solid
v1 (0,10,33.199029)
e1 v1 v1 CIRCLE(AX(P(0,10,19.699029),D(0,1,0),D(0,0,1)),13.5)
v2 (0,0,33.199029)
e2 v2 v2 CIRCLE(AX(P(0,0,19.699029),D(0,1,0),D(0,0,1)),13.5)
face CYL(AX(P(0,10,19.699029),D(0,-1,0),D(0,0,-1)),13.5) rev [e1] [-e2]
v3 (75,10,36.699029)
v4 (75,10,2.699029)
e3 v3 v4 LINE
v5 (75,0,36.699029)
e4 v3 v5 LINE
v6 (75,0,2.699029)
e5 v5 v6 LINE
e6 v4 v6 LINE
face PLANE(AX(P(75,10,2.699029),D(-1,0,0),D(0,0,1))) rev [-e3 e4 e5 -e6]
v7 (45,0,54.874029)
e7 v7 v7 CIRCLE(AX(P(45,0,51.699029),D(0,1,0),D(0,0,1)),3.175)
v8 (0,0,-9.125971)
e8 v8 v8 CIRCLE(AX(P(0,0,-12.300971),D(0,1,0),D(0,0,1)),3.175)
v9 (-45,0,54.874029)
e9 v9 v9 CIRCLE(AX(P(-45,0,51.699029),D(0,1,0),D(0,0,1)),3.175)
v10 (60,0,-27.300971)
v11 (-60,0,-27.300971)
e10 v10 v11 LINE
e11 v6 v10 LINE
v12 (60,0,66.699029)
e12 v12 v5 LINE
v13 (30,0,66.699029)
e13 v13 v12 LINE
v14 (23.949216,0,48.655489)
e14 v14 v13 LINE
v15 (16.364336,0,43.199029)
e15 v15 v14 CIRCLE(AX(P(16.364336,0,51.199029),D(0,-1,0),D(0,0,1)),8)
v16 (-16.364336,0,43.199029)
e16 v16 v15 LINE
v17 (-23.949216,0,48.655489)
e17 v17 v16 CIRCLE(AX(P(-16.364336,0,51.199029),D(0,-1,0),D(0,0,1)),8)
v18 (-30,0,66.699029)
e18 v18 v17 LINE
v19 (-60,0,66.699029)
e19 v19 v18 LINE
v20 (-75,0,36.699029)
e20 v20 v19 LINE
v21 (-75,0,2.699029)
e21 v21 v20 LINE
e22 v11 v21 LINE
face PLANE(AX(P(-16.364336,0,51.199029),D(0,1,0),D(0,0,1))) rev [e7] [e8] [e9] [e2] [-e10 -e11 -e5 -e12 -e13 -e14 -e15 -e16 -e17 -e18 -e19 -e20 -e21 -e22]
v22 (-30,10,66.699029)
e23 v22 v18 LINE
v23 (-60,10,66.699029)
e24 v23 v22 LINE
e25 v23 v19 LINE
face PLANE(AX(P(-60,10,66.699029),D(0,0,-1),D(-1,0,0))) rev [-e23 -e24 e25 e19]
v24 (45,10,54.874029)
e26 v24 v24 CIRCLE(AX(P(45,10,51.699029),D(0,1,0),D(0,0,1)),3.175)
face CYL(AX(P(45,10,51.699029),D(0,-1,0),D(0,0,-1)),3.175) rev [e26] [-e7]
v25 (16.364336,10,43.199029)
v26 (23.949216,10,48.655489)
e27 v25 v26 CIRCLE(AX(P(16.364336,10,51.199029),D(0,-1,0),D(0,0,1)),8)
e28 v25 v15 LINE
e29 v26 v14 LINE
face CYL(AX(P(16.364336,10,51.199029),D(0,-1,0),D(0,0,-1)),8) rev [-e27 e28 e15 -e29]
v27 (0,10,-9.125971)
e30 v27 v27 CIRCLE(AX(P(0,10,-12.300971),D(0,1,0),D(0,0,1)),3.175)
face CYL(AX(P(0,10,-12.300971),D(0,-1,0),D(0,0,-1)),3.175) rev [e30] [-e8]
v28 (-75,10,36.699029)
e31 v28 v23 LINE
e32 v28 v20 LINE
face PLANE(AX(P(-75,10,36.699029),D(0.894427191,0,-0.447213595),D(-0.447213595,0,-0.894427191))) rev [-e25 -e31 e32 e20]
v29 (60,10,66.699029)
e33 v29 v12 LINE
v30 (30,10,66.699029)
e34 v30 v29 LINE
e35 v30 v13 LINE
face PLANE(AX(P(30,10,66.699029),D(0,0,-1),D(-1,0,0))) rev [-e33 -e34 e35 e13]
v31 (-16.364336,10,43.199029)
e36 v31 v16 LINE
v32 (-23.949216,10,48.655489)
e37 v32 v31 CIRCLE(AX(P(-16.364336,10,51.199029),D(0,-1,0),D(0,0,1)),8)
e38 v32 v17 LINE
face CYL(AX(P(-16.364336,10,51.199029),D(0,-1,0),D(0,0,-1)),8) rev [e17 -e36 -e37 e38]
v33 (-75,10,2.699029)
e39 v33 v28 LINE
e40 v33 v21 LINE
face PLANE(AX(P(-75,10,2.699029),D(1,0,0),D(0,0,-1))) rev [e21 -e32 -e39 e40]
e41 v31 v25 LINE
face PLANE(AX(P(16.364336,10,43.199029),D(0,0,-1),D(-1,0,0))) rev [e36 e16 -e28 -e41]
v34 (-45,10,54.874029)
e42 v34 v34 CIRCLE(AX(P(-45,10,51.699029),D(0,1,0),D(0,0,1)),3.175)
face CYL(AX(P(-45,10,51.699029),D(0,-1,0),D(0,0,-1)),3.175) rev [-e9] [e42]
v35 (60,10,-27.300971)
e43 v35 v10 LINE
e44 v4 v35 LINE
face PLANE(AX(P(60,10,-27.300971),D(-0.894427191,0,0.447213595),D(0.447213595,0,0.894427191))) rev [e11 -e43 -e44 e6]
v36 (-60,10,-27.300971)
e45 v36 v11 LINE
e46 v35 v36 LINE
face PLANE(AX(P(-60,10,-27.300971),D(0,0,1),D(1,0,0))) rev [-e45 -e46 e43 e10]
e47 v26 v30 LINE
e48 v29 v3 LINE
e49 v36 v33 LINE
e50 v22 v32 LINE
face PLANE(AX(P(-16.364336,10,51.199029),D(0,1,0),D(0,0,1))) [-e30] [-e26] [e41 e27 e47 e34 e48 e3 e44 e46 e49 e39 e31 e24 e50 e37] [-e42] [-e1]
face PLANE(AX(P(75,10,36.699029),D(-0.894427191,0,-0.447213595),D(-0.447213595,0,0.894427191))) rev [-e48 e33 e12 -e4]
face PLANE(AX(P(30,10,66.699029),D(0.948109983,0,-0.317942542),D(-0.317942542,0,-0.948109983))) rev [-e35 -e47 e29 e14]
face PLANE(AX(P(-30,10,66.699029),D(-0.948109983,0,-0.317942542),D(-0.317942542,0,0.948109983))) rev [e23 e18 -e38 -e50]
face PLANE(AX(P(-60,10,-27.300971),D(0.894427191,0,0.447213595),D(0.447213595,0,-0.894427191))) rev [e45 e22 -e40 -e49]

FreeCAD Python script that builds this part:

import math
import FreeCAD as App
import Part
import Sketcher
from FreeCAD import Vector
Q = App.Units.Quantity

doc = App.newDocument("Part")
body = doc.addObject("PartDesign::Body", "Body")

sketch1 = doc.addObject("Sketcher::SketchObject", "Sketch")
body.addObject(sketch1)
sketch1.AttachmentSupport = (doc.XZ_Plane, [""])
sketch1.MapMode = "FlatFace"
sketch1.addGeometry(Part.LineSegment(Vector(60, -27.3, 0), Vector(-60, -27.3, 0)), False)
sketch1.addGeometry(Part.LineSegment(Vector(-60, -27.3, 0), Vector(-75, 2.7, 0)), False)
sketch1.addGeometry(Part.LineSegment(Vector(-75, 2.7, 0), Vector(-75, 36.7, 0)), False)
sketch1.addGeometry(Part.LineSegment(Vector(-75, 36.7, 0), Vector(-60, 66.7, 0)), False)
sketch1.addGeometry(Part.LineSegment(Vector(-60, 66.7, 0), Vector(-30, 66.7, 0)), False)
sketch1.addGeometry(Part.LineSegment(Vector(-30, 66.7, 0), Vector(-23.9, 48.7, 0)), False)
sketch1.addGeometry(Part.ArcOfCircle(Part.Circle(Vector(-16.4, 51.2, 0), Vector(0, 0, 1), 8), math.radians(-161), math.radians(-90)), False)
sketch1.addGeometry(Part.LineSegment(Vector(-16.4, 43.2, 0), Vector(16.4, 43.2, 0)), False)
sketch1.addGeometry(Part.ArcOfCircle(Part.Circle(Vector(16.4, 51.2, 0), Vector(0, 0, 1), 8), math.radians(-90), math.radians(-19)), False)
sketch1.addGeometry(Part.LineSegment(Vector(23.9, 48.7, 0), Vector(30, 66.7, 0)), False)
sketch1.addGeometry(Part.LineSegment(Vector(30, 66.7, 0), Vector(60, 66.7, 0)), False)
sketch1.addGeometry(Part.LineSegment(Vector(60, 66.7, 0), Vector(75, 36.7, 0)), False)
sketch1.addGeometry(Part.LineSegment(Vector(75, 36.7, 0), Vector(75, 2.7, 0)), False)
sketch1.addGeometry(Part.LineSegment(Vector(75, 2.7, 0), Vector(60, -27.3, 0)), False)
sketch1.addGeometry(Part.Circle(Vector(45, 51.7, 0), Vector(0, 0, 1), 3.2), False)
sketch1.addGeometry(Part.Circle(Vector(-45, 51.7, 0), Vector(0, 0, 1), 3.2), False)
sketch1.addGeometry(Part.Circle(Vector(0, 19.7, 0), Vector(0, 0, 1), 13.5), False)
sketch1.addGeometry(Part.Circle(Vector(0, -12.3, 0), Vector(0, 0, 1), 3.2), False)
sketch1.addConstraint(Sketcher.Constraint("Coincident", 0, 2, 1, 1))
sketch1.addConstraint(Sketcher.Constraint("Coincident", 1, 2, 2, 1))
sketch1.addConstraint(Sketcher.Constraint("Coincident", 2, 2, 3, 1))
sketch1.addConstraint(Sketcher.Constraint("Coincident", 3, 2, 4, 1))
sketch1.addConstraint(Sketcher.Constraint("Coincident", 4, 2, 5, 1))
sketch1.addConstraint(Sketcher.Constraint("Tangent", 5, 2, 6, 1))
sketch1.addConstraint(Sketcher.Constraint("Tangent", 6, 2, 7, 1))
sketch1.addConstraint(Sketcher.Constraint("Tangent", 7, 2, 8, 1))
sketch1.addConstraint(Sketcher.Constraint("Tangent", 8, 2, 9, 1))
sketch1.addConstraint(Sketcher.Constraint("Coincident", 9, 2, 10, 1))
sketch1.addConstraint(Sketcher.Constraint("Coincident", 10, 2, 11, 1))
sketch1.addConstraint(Sketcher.Constraint("Coincident", 11, 2, 12, 1))
sketch1.addConstraint(Sketcher.Constraint("Coincident", 12, 2, 13, 1))
sketch1.addConstraint(Sketcher.Constraint("Coincident", 13, 2, 0, 1))
sketch1.addConstraint(Sketcher.Constraint("Horizontal", 0))
sketch1.addConstraint(Sketcher.Constraint("Vertical", 2))
sketch1.addConstraint(Sketcher.Constraint("Horizontal", 4))
sketch1.addConstraint(Sketcher.Constraint("Horizontal", 7))
sketch1.addConstraint(Sketcher.Constraint("Horizontal", 10))
sketch1.addConstraint(Sketcher.Constraint("Vertical", 12))
sketch1.addConstraint(Sketcher.Constraint("Equal", 6, 8))
sketch1.addConstraint(Sketcher.Constraint("Equal", 14, 15))
sketch1.addConstraint(Sketcher.Constraint("Equal", 15, 17))
sketch1.addConstraint(Sketcher.Constraint("Symmetric", 14, 3, 15, 3, -2))
sketch1.addConstraint(Sketcher.Constraint("Symmetric", 5, 2, 8, 2, -2))
sketch1.addConstraint(Sketcher.Constraint("Symmetric", 3, 2, 10, 2, -2))
sketch1.addConstraint(Sketcher.Constraint("Symmetric", 2, 2, 11, 2, -2))
sketch1.addConstraint(Sketcher.Constraint("PointOnObject", 16, 3, -2))
sketch1.addConstraint(Sketcher.Constraint("PointOnObject", 17, 3, -2))
sketch1.addConstraint(Sketcher.Constraint("Parallel", 1, 11))
sketch1.addConstraint(Sketcher.Constraint("Parallel", 3, 13))
sketch1.addConstraint(Sketcher.Constraint("Horizontal", 1, 2, 12, 2))
sketch1.addConstraint(Sketcher.Constraint("Vertical", 0, 2, 3, 2))
sketch1.addConstraint(Sketcher.Constraint("Diameter", 16, Q("27 mm")))
sketch1.addConstraint(Sketcher.Constraint("Radius", 6, Q("8 mm")))
sketch1.addConstraint(Sketcher.Constraint("Diameter", 14, Q("6.35 mm")))
sketch1.addConstraint(Sketcher.Constraint("DistanceX", 0, 2, 0, 1, Q("120 mm")))
sketch1.addConstraint(Sketcher.Constraint("DistanceX", 4, 1, 4, 2, Q("30 mm")))
sketch1.addConstraint(Sketcher.Constraint("DistanceY", 2, 1, 2, 2, Q("34 mm")))
sketch1.addConstraint(Sketcher.Constraint("DistanceX", -1, 1, 14, 3, Q("45 mm")))
sketch1.addConstraint(Sketcher.Constraint("DistanceX", 1, 2, -1, 1, Q("75 mm")))
sketch1.addConstraint(Sketcher.Constraint("DistanceY", 16, 3, 14, 3, Q("32 mm")))
sketch1.addConstraint(Sketcher.Constraint("DistanceY", 17, 3, 16, 3, Q("32 mm")))
sketch1.addConstraint(Sketcher.Constraint("DistanceY", 0, 2, 17, 3, Q("15 mm")))
sketch1.addConstraint(Sketcher.Constraint("DistanceY", 0, 2, 1, 2, Q("30 mm")))
sketch1.addConstraint(Sketcher.Constraint("DistanceY", 8, 3, 14, 3, Q("0.5 mm")))
sketch1.addConstraint(Sketcher.Constraint("DistanceX", 7, 1, 7, 2, Q("32.728671 mm")))
sketch1.addConstraint(Sketcher.Constraint("DistanceY", -1, 1, 6, 3, Q("51.199029 mm")))
pad1 = doc.addObject("PartDesign::Pad", "Pad")
body.addObject(pad1)
pad1.Profile = sketch1
pad1.Length = 10
pad1.Reversed = True

doc.recompute()
